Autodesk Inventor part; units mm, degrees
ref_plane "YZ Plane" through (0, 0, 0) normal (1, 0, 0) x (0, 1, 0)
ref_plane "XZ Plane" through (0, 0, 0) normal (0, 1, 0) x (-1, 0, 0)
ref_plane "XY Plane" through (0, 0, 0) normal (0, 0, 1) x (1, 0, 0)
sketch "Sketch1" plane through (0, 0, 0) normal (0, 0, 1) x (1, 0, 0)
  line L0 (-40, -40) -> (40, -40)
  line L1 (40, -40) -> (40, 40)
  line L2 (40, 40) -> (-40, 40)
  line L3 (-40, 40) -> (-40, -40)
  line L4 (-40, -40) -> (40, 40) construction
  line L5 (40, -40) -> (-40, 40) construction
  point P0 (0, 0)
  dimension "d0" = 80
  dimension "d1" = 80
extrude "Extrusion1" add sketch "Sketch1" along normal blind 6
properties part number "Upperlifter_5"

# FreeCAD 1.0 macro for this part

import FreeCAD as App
import Part
import Sketcher
from FreeCAD import Vector

doc = App.newDocument("Part")
body = doc.addObject("PartDesign::Body", "Body")

# Sketch on XY plane
sketch1 = doc.addObject("Sketcher::SketchObject", "Sketch")
body.addObject(sketch1)
sketch1.AttachmentSupport = (doc.XY_Plane, [""])
sketch1.MapMode = "FlatFace"
sketch1.addGeometry([
    Part.LineSegment(Vector(-40, 40, 0), Vector(-40, -40, 0)),
    Part.LineSegment(Vector(-40, -40, 0), Vector(40, -40, 0)),
    Part.LineSegment(Vector(40, -40, 0), Vector(40, 40, 0)),
    Part.LineSegment(Vector(40, 40, 0), Vector(-40, 40, 0)),
], False)
sketch1.addConstraint([
    Sketcher.Constraint("Coincident", 0, 2, 1, 1),
    Sketcher.Constraint("Coincident", 1, 2, 2, 1),
    Sketcher.Constraint("Coincident", 2, 2, 3, 1),
    Sketcher.Constraint("Coincident", 3, 2, 0, 1),
    Sketcher.Constraint("Vertical", 0),
    Sketcher.Constraint("Horizontal", 1),
    Sketcher.Constraint("Vertical", 2),
    Sketcher.Constraint("Horizontal", 3),
    Sketcher.Constraint("Symmetric", 0, 2, 2, 2, -1, 1),
    Sketcher.Constraint("Equal", 3, 0),
    Sketcher.Constraint("DistanceX", 1, 1, 1, 2, 80.0),
])
pad1 = doc.addObject("PartDesign::Pad", "Pad")
body.addObject(pad1)
pad1.Profile = sketch1
pad1.Length = 6

doc.recompute()
